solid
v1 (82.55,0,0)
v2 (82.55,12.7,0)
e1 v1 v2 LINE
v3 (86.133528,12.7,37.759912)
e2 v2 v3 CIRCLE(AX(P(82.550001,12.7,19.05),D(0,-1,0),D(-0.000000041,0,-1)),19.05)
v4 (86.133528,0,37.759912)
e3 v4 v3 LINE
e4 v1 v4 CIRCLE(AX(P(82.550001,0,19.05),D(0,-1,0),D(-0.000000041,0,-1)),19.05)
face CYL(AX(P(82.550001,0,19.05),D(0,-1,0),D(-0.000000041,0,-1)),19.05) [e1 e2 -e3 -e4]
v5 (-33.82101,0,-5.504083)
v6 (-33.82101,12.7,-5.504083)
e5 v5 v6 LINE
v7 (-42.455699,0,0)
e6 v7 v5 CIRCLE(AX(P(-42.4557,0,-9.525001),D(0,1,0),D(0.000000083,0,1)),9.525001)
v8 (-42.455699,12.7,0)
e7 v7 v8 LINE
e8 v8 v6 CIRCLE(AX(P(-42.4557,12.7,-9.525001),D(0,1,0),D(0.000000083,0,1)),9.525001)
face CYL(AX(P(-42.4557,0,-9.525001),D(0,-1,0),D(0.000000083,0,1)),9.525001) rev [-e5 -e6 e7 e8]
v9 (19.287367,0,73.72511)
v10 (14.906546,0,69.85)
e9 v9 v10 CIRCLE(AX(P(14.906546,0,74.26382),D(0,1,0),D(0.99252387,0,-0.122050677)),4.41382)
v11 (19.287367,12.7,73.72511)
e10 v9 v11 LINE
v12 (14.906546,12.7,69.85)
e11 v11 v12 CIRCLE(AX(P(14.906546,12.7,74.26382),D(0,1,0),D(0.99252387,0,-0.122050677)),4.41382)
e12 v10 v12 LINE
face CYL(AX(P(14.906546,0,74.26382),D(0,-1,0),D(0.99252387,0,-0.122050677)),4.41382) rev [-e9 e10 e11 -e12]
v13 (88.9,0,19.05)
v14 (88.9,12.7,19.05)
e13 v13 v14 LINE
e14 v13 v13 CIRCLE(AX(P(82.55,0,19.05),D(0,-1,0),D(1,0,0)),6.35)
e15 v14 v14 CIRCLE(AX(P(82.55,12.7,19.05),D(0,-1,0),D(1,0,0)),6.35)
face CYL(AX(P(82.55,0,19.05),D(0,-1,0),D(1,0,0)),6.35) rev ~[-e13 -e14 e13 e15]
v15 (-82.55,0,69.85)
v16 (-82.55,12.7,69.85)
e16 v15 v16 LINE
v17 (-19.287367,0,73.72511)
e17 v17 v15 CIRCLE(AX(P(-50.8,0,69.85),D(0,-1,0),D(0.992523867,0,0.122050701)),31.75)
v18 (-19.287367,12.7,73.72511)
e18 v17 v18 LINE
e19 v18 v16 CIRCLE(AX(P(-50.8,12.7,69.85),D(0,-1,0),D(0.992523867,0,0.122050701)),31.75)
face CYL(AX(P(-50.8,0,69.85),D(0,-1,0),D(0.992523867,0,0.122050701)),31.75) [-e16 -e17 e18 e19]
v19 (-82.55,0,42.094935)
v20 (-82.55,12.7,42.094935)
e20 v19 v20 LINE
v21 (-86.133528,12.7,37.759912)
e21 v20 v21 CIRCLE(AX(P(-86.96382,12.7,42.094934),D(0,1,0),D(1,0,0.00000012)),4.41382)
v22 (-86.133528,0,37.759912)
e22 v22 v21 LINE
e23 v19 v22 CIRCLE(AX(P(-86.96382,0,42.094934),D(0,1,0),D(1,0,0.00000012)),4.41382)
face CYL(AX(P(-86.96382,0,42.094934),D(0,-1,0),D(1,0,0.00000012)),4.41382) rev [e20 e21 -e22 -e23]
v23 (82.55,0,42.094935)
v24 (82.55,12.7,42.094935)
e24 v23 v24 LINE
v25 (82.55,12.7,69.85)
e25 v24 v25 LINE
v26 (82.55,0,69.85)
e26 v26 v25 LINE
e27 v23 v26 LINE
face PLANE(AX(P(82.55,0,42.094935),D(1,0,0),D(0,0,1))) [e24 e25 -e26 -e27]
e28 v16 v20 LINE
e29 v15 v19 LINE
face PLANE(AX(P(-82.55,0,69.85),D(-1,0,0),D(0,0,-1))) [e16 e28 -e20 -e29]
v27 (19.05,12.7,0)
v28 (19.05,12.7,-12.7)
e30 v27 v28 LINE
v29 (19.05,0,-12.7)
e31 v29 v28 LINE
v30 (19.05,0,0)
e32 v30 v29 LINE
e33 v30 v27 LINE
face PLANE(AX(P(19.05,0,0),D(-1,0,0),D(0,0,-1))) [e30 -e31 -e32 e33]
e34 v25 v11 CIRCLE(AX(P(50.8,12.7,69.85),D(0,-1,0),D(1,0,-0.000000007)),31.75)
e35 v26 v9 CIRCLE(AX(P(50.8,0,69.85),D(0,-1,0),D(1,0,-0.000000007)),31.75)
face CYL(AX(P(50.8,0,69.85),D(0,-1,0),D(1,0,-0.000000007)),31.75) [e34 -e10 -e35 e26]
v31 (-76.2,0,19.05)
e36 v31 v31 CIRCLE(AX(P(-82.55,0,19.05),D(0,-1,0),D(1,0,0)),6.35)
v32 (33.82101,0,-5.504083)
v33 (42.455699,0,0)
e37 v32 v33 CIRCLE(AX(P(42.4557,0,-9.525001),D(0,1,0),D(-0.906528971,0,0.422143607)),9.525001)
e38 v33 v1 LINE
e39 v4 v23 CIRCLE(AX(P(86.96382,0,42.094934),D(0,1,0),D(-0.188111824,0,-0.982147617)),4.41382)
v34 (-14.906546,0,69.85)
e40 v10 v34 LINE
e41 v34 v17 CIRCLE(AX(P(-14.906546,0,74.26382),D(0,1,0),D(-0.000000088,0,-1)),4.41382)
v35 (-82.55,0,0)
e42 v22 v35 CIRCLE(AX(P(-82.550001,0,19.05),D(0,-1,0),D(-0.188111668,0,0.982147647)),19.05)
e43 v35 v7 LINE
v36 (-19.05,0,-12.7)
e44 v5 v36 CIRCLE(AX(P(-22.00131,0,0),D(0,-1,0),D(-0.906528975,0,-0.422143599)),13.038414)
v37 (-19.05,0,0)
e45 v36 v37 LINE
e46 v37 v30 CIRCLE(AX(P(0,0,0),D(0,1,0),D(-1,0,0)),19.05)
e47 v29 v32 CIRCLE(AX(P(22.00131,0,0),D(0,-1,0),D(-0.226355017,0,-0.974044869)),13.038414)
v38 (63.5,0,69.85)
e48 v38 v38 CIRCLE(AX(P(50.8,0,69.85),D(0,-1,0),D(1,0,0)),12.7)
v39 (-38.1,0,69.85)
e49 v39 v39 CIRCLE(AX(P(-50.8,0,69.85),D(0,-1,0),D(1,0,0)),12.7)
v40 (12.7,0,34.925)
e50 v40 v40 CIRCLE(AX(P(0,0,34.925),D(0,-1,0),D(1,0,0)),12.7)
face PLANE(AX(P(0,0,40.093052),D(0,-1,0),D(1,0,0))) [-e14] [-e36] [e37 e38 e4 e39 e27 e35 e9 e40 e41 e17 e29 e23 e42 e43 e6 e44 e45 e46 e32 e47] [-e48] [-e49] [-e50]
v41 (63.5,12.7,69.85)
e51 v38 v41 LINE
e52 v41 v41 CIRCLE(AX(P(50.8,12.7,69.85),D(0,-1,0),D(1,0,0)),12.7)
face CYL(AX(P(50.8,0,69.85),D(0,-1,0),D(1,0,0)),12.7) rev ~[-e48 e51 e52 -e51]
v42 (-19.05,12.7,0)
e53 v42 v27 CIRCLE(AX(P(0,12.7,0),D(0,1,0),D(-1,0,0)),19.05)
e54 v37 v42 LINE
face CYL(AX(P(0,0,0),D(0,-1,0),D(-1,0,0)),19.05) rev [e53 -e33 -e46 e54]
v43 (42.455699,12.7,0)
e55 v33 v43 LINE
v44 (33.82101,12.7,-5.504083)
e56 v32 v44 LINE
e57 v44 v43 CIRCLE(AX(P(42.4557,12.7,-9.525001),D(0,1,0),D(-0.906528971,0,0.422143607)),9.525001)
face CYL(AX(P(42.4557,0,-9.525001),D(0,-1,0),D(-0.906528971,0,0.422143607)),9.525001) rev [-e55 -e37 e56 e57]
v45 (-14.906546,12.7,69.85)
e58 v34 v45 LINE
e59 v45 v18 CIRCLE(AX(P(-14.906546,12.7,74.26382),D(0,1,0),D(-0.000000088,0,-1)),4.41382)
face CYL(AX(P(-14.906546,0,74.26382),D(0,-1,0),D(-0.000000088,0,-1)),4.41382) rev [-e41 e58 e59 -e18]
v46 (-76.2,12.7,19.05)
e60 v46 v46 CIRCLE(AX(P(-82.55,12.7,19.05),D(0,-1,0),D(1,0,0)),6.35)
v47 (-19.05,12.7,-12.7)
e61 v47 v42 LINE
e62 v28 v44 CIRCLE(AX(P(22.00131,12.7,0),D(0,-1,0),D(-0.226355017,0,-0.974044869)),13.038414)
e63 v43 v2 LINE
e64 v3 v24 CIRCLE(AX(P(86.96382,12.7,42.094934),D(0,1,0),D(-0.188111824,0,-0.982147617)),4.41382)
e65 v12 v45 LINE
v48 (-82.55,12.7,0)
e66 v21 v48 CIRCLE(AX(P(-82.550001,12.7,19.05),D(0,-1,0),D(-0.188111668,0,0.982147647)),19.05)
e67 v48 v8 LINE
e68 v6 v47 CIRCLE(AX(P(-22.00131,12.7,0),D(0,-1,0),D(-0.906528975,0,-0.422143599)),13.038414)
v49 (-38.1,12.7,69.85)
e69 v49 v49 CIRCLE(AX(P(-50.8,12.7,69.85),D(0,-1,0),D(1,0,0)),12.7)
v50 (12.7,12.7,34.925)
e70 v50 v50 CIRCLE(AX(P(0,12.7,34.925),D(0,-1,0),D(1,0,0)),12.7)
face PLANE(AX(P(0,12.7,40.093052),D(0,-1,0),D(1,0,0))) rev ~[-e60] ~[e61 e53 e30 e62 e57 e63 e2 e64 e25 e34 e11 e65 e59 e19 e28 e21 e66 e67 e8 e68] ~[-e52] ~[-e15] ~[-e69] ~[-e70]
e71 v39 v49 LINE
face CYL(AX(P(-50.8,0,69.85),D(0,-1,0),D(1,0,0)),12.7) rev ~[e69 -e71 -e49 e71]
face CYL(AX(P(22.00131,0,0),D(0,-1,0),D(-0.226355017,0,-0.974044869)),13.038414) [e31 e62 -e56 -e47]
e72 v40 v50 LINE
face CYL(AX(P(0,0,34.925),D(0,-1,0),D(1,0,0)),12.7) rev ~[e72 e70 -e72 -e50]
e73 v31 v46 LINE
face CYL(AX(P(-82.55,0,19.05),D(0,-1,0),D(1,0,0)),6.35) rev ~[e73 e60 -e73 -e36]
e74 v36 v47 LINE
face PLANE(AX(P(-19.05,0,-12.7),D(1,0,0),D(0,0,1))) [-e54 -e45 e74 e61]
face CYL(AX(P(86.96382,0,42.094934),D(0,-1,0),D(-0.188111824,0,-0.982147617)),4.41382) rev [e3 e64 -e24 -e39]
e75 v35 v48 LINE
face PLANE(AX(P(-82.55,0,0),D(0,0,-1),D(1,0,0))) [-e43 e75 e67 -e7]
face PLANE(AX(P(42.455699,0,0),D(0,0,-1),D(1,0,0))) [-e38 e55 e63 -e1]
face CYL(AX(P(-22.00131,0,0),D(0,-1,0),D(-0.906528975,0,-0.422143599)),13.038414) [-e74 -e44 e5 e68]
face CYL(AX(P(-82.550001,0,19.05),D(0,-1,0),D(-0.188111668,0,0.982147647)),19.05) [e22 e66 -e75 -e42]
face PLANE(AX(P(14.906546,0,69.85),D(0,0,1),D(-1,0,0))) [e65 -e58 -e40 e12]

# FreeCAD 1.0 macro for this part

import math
import FreeCAD as App
import Part
import Sketcher
from FreeCAD import Vector
Q = App.Units.Quantity

doc = App.newDocument("Part")
body = doc.addObject("PartDesign::Body", "Body")

sketch1 = body.newObject("Sketcher::SketchObject", "Sketch")
sketch1.AttachmentSupport = (doc.getObject("XZ_Plane"), [""])
sketch1.MapMode = "FlatFace"
sketch1.addGeometry(Part.LineSegment(Vector(14.9, 69.8, 0), Vector(-14.9, 69.8, 0)), False)
sketch1.addGeometry(Part.ArcOfCircle(Part.Circle(Vector(-14.9, 74.3, 0), Vector(0, 0, 1), 4.4), math.radians(-173), math.radians(-90)), False)
sketch1.addGeometry(Part.ArcOfCircle(Part.Circle(Vector(-50.8, 69.9, 0), Vector(0, 0, 1), 31.8), math.radians(7), math.radians(180)), False)
sketch1.addGeometry(Part.LineSegment(Vector(-82.5, 69.8, 0), Vector(-82.5, 42.1, 0)), False)
sketch1.addGeometry(Part.ArcOfCircle(Part.Circle(Vector(-87, 42.1, 0), Vector(0, 0, 1), 4.4), math.radians(-79), math.radians(0)), False)
sketch1.addGeometry(Part.ArcOfCircle(Part.Circle(Vector(-82.6, 19, 0), Vector(0, 0, 1), 19), math.radians(101), math.radians(270)), False)
sketch1.addGeometry(Part.LineSegment(Vector(-82.5, 0, 0), Vector(-42.5, 0, 0)), False)
sketch1.addGeometry(Part.ArcOfCircle(Part.Circle(Vector(-42.5, -9.5, 0), Vector(0, 0, 1), 9.5), math.radians(25), math.radians(90)), False)
sketch1.addGeometry(Part.ArcOfCircle(Part.Circle(Vector(-22, 0, 0), Vector(0, 0, 1), 13), math.radians(-155), math.radians(-77)), False)
sketch1.addGeometry(Part.LineSegment(Vector(-19.1, -12.7, 0), Vector(-19.1, 0, 0)), False)
sketch1.addGeometry(Part.ArcOfCircle(Part.Circle(Vector(0, 0, 0), Vector(0, 0, 1), 19.1), math.radians(0), math.radians(180)), False)
sketch1.addGeometry(Part.LineSegment(Vector(19.1, 0, 0), Vector(19.1, -12.7, 0)), False)
sketch1.addGeometry(Part.ArcOfCircle(Part.Circle(Vector(22, 0, 0), Vector(0, 0, 1), 13), math.radians(-103), math.radians(-25)), False)
sketch1.addGeometry(Part.ArcOfCircle(Part.Circle(Vector(42.5, -9.5, 0), Vector(0, 0, 1), 9.5), math.radians(90), math.radians(155)), False)
sketch1.addGeometry(Part.LineSegment(Vector(42.5, 0, 0), Vector(82.5, 0, 0)), False)
sketch1.addGeometry(Part.ArcOfCircle(Part.Circle(Vector(82.6, 19, 0), Vector(0, 0, 1), 19), math.radians(-90), math.radians(79)), False)
sketch1.addGeometry(Part.ArcOfCircle(Part.Circle(Vector(87, 42.1, 0), Vector(0, 0, 1), 4.4), math.radians(180), math.radians(259)), False)
sketch1.addGeometry(Part.LineSegment(Vector(82.5, 42.1, 0), Vector(82.5, 69.8, 0)), False)
sketch1.addGeometry(Part.ArcOfCircle(Part.Circle(Vector(50.8, 69.9, 0), Vector(0, 0, 1), 31.8), math.radians(0), math.radians(173)), False)
sketch1.addGeometry(Part.ArcOfCircle(Part.Circle(Vector(14.9, 74.3, 0), Vector(0, 0, 1), 4.4), math.radians(-90), math.radians(-7)), False)
sketch1.addGeometry(Part.Circle(Vector(-82.5, 19.1, 0), Vector(0, 0, 1), 6.3), False)
sketch1.addGeometry(Part.Circle(Vector(82.5, 19.1, 0), Vector(0, 0, 1), 6.3), False)
sketch1.addGeometry(Part.Circle(Vector(0, 34.9, 0), Vector(0, 0, 1), 12.7), False)
sketch1.addGeometry(Part.Circle(Vector(-50.8, 69.8, 0), Vector(0, 0, 1), 12.7), False)
sketch1.addGeometry(Part.Circle(Vector(50.8, 69.8, 0), Vector(0, 0, 1), 12.7), False)
sketch1.addConstraint(Sketcher.Constraint("Tangent", 0, 2, 1, 2))
sketch1.addConstraint(Sketcher.Constraint("Tangent", 1, 1, 2, 1))
sketch1.addConstraint(Sketcher.Constraint("Tangent", 2, 2, 3, 1))
sketch1.addConstraint(Sketcher.Constraint("Tangent", 3, 2, 4, 2))
sketch1.addConstraint(Sketcher.Constraint("Tangent", 4, 1, 5, 1))
sketch1.addConstraint(Sketcher.Constraint("Tangent", 5, 2, 6, 1))
sketch1.addConstraint(Sketcher.Constraint("Tangent", 6, 2, 7, 2))
sketch1.addConstraint(Sketcher.Constraint("Tangent", 7, 1, 8, 1))
sketch1.addConstraint(Sketcher.Constraint("Coincident", 8, 2, 9, 1))
sketch1.addConstraint(Sketcher.Constraint("Tangent", 9, 2, 10, 2))
sketch1.addConstraint(Sketcher.Constraint("Tangent", 10, 1, 11, 1))
sketch1.addConstraint(Sketcher.Constraint("Coincident", 11, 2, 12, 1))
sketch1.addConstraint(Sketcher.Constraint("Tangent", 12, 2, 13, 2))
sketch1.addConstraint(Sketcher.Constraint("Tangent", 13, 1, 14, 1))
sketch1.addConstraint(Sketcher.Constraint("Tangent", 14, 2, 15, 1))
sketch1.addConstraint(Sketcher.Constraint("Tangent", 15, 2, 16, 2))
sketch1.addConstraint(Sketcher.Constraint("Tangent", 16, 1, 17, 1))
sketch1.addConstraint(Sketcher.Constraint("Tangent", 17, 2, 18, 1))
sketch1.addConstraint(Sketcher.Constraint("Tangent", 18, 2, 19, 2))
sketch1.addConstraint(Sketcher.Constraint("Tangent", 19, 1, 0, 1))
sketch1.addConstraint(Sketcher.Constraint("Horizontal", 0))
sketch1.addConstraint(Sketcher.Constraint("Vertical", 3))
sketch1.addConstraint(Sketcher.Constraint("Horizontal", 6))
sketch1.addConstraint(Sketcher.Constraint("Vertical", 9))
sketch1.addConstraint(Sketcher.Constraint("Vertical", 11))
sketch1.addConstraint(Sketcher.Constraint("Horizontal", 14))
sketch1.addConstraint(Sketcher.Constraint("Vertical", 17))
sketch1.addConstraint(Sketcher.Constraint("Coincident", 10, 3, -1, 1))
sketch1.addConstraint(Sketcher.Constraint("Coincident", 20, 3, 5, 3))
sketch1.addConstraint(Sketcher.Constraint("Coincident", 21, 3, 15, 3))
sketch1.addConstraint(Sketcher.Constraint("Coincident", 23, 3, 2, 3))
sketch1.addConstraint(Sketcher.Constraint("Coincident", 24, 3, 18, 3))
sketch1.addConstraint(Sketcher.Constraint("Equal", 1, 4))
sketch1.addConstraint(Sketcher.Constraint("Equal", 5, 10))
sketch1.addConstraint(Sketcher.Constraint("Equal", 8, 12))
sketch1.addConstraint(Sketcher.Constraint("Equal", 7, 13))
sketch1.addConstraint(Sketcher.Constraint("Equal", 10, 15))
sketch1.addConstraint(Sketcher.Constraint("Equal", 4, 16))
sketch1.addConstraint(Sketcher.Constraint("Equal", 2, 18))
sketch1.addConstraint(Sketcher.Constraint("Equal", 16, 19))
sketch1.addConstraint(Sketcher.Constraint("Equal", 20, 21))
sketch1.addConstraint(Sketcher.Constraint("Equal", 22, 23))
sketch1.addConstraint(Sketcher.Constraint("Equal", 23, 24))
sketch1.addConstraint(Sketcher.Constraint("Symmetric", 8, 3, 12, 3, -1, 1))
sketch1.addConstraint(Sketcher.Constraint("Symmetric", 6, 2, 13, 1, -1, 1))
sketch1.addConstraint(Sketcher.Constraint("Symmetric", 5, 3, 15, 3, -2))
sketch1.addConstraint(Sketcher.Constraint("Symmetric", 2, 3, 18, 3, -2))
sketch1.addConstraint(Sketcher.Constraint("PointOnObject", 22, 3, -2))
sketch1.addConstraint(Sketcher.Constraint("Horizontal", 24, 3, 0, 2))
sketch1.addConstraint(Sketcher.Constraint("Vertical", 20, 3, 2, 2))
sketch1.addConstraint(Sketcher.Constraint("Diameter", 22, Q("1 in")))
sketch1.addConstraint(Sketcher.Constraint("Diameter", 20, Q("0.5 in")))
sketch1.addConstraint(Sketcher.Constraint("Radius", 2, Q("1.25 in")))
sketch1.addConstraint(Sketcher.Constraint("Radius", 5, Q("0.75 in")))
sketch1.addConstraint(Sketcher.Constraint("DistanceY", 9, 1, 9, 2, Q("0.5 in")))
sketch1.addConstraint(Sketcher.Constraint("DistanceX", 2, 3, -1, 1, Q("2 in")))
sketch1.addConstraint(Sketcher.Constraint("Radius", 7, Q("0.3750001 in")))
sketch1.addConstraint(Sketcher.Constraint("DistanceY", 5, 3, 2, 3, Q("2 in")))
sketch1.addConstraint(Sketcher.Constraint("DistanceY", -1, 1, 22, 3, Q("1.375 in")))
sketch1.addConstraint(Sketcher.Constraint("Radius", 1, 4.41382))
sketch1.addConstraint(Sketcher.Constraint("DistanceX", 6, 1, 6, 2, 40.094301))
pad1 = body.newObject("PartDesign::Pad", "Pad")
pad1.Profile = sketch1
pad1.Length = Q("0.5 in")
pad1.Reversed = True

doc.recompute()
